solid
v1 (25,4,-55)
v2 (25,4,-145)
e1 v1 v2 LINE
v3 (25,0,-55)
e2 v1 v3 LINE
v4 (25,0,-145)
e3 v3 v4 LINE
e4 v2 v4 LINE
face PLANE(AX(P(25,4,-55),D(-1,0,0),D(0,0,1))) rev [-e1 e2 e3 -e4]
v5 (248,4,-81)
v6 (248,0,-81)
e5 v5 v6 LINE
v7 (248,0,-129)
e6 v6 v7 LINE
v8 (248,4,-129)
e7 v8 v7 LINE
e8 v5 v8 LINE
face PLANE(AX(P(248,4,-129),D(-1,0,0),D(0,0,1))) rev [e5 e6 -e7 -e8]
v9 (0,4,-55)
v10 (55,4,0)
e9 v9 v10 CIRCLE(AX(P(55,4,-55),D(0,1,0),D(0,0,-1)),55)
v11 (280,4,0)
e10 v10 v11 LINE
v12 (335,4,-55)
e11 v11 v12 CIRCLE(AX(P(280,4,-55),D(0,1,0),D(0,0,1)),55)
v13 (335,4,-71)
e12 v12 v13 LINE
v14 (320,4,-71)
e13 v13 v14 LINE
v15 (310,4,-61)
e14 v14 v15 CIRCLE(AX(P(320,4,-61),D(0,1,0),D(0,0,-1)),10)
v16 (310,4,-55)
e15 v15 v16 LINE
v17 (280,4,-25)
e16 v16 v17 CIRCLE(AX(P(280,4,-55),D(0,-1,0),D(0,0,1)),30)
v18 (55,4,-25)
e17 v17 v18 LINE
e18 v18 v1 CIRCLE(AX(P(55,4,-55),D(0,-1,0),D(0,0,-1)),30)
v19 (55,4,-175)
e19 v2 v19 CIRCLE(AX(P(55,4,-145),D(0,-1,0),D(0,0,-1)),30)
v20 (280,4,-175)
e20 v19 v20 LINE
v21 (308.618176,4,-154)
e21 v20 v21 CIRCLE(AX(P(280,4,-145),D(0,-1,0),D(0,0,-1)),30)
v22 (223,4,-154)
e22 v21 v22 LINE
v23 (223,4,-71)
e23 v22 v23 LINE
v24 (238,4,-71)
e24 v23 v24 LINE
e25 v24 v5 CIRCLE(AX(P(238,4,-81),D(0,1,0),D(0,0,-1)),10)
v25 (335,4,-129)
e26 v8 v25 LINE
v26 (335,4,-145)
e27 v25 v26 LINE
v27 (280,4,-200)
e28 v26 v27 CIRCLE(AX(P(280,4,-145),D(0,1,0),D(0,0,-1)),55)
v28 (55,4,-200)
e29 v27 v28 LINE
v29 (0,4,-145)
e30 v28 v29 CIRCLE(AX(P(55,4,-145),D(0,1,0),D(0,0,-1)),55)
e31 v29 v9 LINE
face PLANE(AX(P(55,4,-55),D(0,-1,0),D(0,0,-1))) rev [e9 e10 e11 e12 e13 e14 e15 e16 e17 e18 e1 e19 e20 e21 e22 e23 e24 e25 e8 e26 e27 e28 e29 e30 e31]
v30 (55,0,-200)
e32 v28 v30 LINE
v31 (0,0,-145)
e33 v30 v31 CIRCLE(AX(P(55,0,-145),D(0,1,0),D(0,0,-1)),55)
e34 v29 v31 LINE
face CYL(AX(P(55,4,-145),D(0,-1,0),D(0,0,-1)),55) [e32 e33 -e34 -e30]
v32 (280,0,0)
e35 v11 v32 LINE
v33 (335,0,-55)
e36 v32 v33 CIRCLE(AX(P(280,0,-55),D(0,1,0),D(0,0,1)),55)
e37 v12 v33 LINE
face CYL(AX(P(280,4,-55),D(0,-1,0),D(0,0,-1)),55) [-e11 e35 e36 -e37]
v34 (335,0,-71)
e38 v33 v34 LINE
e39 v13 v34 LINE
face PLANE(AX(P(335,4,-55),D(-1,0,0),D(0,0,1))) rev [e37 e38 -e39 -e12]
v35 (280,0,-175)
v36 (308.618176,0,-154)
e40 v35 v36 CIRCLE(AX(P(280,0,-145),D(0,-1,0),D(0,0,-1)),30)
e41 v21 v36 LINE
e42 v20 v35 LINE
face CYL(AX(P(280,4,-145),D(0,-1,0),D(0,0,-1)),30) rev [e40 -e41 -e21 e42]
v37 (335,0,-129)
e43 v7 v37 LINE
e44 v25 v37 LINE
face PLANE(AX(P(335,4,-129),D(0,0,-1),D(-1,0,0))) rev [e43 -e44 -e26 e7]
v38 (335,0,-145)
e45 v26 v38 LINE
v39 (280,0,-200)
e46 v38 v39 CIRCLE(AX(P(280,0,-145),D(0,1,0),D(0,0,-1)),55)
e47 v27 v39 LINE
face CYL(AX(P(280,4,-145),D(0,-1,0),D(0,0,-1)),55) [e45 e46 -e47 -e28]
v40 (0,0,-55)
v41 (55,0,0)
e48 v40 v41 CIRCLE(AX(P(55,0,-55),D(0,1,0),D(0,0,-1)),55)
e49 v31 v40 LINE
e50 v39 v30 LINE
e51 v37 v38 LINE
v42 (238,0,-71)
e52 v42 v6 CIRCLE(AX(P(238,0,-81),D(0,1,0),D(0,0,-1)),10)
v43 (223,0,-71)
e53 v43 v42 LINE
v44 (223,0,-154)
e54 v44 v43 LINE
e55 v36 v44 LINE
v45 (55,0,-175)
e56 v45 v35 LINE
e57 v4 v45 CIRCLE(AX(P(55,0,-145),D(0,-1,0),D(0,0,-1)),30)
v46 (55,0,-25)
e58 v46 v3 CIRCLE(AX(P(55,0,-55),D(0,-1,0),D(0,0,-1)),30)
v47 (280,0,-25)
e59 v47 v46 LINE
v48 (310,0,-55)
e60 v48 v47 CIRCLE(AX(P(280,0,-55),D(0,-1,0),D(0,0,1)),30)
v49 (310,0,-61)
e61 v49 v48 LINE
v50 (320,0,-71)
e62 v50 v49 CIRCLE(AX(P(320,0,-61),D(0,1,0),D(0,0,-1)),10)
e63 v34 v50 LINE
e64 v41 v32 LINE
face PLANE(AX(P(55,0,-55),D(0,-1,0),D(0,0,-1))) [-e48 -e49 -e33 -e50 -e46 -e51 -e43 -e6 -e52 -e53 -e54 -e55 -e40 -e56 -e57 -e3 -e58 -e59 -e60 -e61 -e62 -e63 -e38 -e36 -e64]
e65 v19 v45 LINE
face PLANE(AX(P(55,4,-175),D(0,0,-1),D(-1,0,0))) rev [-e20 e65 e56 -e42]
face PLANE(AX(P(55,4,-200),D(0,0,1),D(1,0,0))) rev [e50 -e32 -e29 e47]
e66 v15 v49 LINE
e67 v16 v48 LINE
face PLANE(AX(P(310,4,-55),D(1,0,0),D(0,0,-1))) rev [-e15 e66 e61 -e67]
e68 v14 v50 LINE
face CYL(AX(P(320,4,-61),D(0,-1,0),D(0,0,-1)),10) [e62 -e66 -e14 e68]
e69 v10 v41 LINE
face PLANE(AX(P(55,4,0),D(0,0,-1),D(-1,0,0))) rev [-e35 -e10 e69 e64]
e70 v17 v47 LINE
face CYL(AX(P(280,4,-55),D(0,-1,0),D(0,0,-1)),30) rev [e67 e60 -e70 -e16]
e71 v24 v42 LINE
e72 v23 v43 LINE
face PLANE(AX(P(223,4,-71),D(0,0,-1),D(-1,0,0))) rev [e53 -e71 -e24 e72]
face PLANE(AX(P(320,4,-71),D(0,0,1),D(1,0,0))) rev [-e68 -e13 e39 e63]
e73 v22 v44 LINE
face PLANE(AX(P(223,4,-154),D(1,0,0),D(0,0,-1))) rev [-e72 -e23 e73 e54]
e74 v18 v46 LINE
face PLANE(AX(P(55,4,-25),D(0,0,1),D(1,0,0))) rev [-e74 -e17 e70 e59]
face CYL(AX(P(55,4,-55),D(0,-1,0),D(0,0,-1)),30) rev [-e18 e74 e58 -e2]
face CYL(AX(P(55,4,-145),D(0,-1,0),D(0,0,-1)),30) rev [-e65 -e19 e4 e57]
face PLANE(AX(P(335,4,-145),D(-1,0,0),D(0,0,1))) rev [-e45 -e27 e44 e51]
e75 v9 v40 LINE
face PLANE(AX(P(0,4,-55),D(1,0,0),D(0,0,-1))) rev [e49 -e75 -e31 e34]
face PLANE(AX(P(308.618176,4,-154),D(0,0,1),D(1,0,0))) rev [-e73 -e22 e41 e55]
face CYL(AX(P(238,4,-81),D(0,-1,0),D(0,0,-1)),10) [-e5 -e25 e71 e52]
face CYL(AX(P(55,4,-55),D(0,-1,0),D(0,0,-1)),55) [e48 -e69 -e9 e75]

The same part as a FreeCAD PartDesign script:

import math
import FreeCAD as App
import Part
import Sketcher

doc = App.newDocument("Part")
body = doc.addObject("PartDesign::Body", "Body")

sketch1 = doc.addObject("Sketcher::SketchObject", "Sketch")
body.addObject(sketch1)
sketch1.AttachmentSupport = (doc.XZ_Plane, [""])
sketch1.MapMode = "FlatFace"
sketch1.addGeometry([
    Part.LineSegment(App.Vector(223, -154, 0), App.Vector(223, -71, 0)),
    Part.LineSegment(App.Vector(223, -71, 0), App.Vector(238, -71, 0)),
    Part.ArcOfCircle(Part.Circle(App.Vector(238, -81, 0), App.Vector(0, 0, 1), 10), math.radians(0), math.radians(90)),
    Part.LineSegment(App.Vector(248, -81, 0), App.Vector(248, -129, 0)),
    Part.LineSegment(App.Vector(248, -129, 0), App.Vector(335, -129, 0)),
    Part.LineSegment(App.Vector(335, -129, 0), App.Vector(335, -145, 0)),
    Part.ArcOfCircle(Part.Circle(App.Vector(280, -145, 0), App.Vector(0, 0, 1), 55), math.radians(-90), math.radians(0)),
    Part.LineSegment(App.Vector(280, -200, 0), App.Vector(55, -200, 0)),
    Part.ArcOfCircle(Part.Circle(App.Vector(55, -145, 0), App.Vector(0, 0, 1), 55), math.radians(-180), math.radians(-90)),
    Part.LineSegment(App.Vector(0, -145, 0), App.Vector(0, -55, 0)),
    Part.ArcOfCircle(Part.Circle(App.Vector(55, -55, 0), App.Vector(0, 0, 1), 55), math.radians(90), math.radians(180)),
    Part.LineSegment(App.Vector(55, 0, 0), App.Vector(280, 0, 0)),
    Part.ArcOfCircle(Part.Circle(App.Vector(280, -55, 0), App.Vector(0, 0, 1), 55), math.radians(0), math.radians(90)),
    Part.LineSegment(App.Vector(335, -55, 0), App.Vector(335, -71, 0)),
    Part.LineSegment(App.Vector(335, -71, 0), App.Vector(320, -71, 0)),
    Part.ArcOfCircle(Part.Circle(App.Vector(320, -61, 0), App.Vector(0, 0, 1), 10), math.radians(180), math.radians(270)),
    Part.LineSegment(App.Vector(310, -61, 0), App.Vector(310, -55, 0)),
    Part.ArcOfCircle(Part.Circle(App.Vector(280, -55, 0), App.Vector(0, 0, 1), 30), math.radians(0), math.radians(90)),
    Part.LineSegment(App.Vector(280, -25, 0), App.Vector(55, -25, 0)),
    Part.ArcOfCircle(Part.Circle(App.Vector(55, -55, 0), App.Vector(0, 0, 1), 30), math.radians(90), math.radians(180)),
    Part.LineSegment(App.Vector(25, -55, 0), App.Vector(25, -145, 0)),
    Part.ArcOfCircle(Part.Circle(App.Vector(55, -145, 0), App.Vector(0, 0, 1), 30), math.radians(180), math.radians(270)),
    Part.LineSegment(App.Vector(55, -175, 0), App.Vector(280, -175, 0)),
    Part.ArcOfCircle(Part.Circle(App.Vector(280, -145, 0), App.Vector(0, 0, 1), 30), math.radians(-90), math.radians(-17.457603)),
    Part.LineSegment(App.Vector(308.618176, -154, 0), App.Vector(223, -154, 0)),
], False)
sketch1.addConstraint([
    Sketcher.Constraint("Coincident", 0, 2, 1, 1),
    Sketcher.Constraint("Tangent", 1, 2, 2, 2),
    Sketcher.Constraint("Tangent", 2, 1, 3, 1),
    Sketcher.Constraint("Coincident", 3, 2, 4, 1),
    Sketcher.Constraint("Coincident", 4, 2, 5, 1),
    Sketcher.Constraint("Tangent", 5, 2, 6, 2),
    Sketcher.Constraint("Tangent", 6, 1, 7, 1),
    Sketcher.Constraint("Tangent", 7, 2, 8, 2),
    Sketcher.Constraint("Tangent", 8, 1, 9, 1),
    Sketcher.Constraint("Tangent", 9, 2, 10, 2),
    Sketcher.Constraint("Tangent", 10, 1, 11, 1),
    Sketcher.Constraint("Tangent", 11, 2, 12, 2),
    Sketcher.Constraint("Tangent", 12, 1, 13, 1),
    Sketcher.Constraint("Coincident", 13, 2, 14, 1),
    Sketcher.Constraint("Tangent", 14, 2, 15, 2),
    Sketcher.Constraint("Tangent", 15, 1, 16, 1),
    Sketcher.Constraint("Tangent", 16, 2, 17, 1),
    Sketcher.Constraint("Tangent", 17, 2, 18, 1),
    Sketcher.Constraint("Tangent", 18, 2, 19, 1),
    Sketcher.Constraint("Tangent", 19, 2, 20, 1),
    Sketcher.Constraint("Tangent", 20, 2, 21, 1),
    Sketcher.Constraint("Tangent", 21, 2, 22, 1),
    Sketcher.Constraint("Tangent", 22, 2, 23, 1),
    Sketcher.Constraint("Coincident", 23, 2, 24, 1),
    Sketcher.Constraint("Coincident", 24, 2, 0, 1),
    Sketcher.Constraint("Vertical", 0),
    Sketcher.Constraint("Horizontal", 1),
    Sketcher.Constraint("Vertical", 3),
    Sketcher.Constraint("Horizontal", 4),
    Sketcher.Constraint("Vertical", 5),
    Sketcher.Constraint("Horizontal", 7),
    Sketcher.Constraint("Vertical", 9),
    Sketcher.Constraint("Horizontal", 11),
    Sketcher.Constraint("Vertical", 13),
    Sketcher.Constraint("Horizontal", 14),
    Sketcher.Constraint("Vertical", 16),
    Sketcher.Constraint("Horizontal", 18),
    Sketcher.Constraint("Vertical", 20),
    Sketcher.Constraint("Horizontal", 22),
    Sketcher.Constraint("Horizontal", 24),
    Sketcher.Constraint("Coincident", 17, 3, 12, 3),
    Sketcher.Constraint("Coincident", 19, 3, 10, 3),
    Sketcher.Constraint("Coincident", 21, 3, 8, 3),
    Sketcher.Constraint("Coincident", 23, 3, 6, 3),
    Sketcher.Constraint("Equal", 6, 8),
    Sketcher.Constraint("Equal", 8, 10),
    Sketcher.Constraint("Equal", 10, 12),
    Sketcher.Constraint("Equal", 2, 15),
    Sketcher.Constraint("PointOnObject", 8, 1, -2),
    Sketcher.Constraint("PointOnObject", 10, 1, -1),
    Sketcher.Constraint("Horizontal", 1, 2, 13, 2),
    Sketcher.Constraint("Vertical", 6, 3, 12, 3),
    Sketcher.Constraint("Equal", 1, 14),
    Sketcher.Constraint("Equal", 5, 13),
    Sketcher.Constraint("Radius", 2, 10.0),
    Sketcher.Constraint("Radius", 6, 55.0),
    Sketcher.Constraint("Radius", 17, 30.0),
    Sketcher.Constraint("DistanceX", 4, 1, 4, 2, 87.0),
    Sketcher.Constraint("DistanceX", 7, 2, 7, 1, 225.0),
    Sketcher.Constraint("DistanceY", 0, 1, 0, 2, 83.0),
    Sketcher.Constraint("DistanceY", 3, 2, 3, 1, 48.0),
    Sketcher.Constraint("DistanceY", 5, 2, 5, 1, 16.0),
])
pad1 = doc.addObject("PartDesign::Pad", "Pad")
body.addObject(pad1)
pad1.Profile = sketch1
pad1.Length = 4
pad1.Reversed = True

doc.recompute()
